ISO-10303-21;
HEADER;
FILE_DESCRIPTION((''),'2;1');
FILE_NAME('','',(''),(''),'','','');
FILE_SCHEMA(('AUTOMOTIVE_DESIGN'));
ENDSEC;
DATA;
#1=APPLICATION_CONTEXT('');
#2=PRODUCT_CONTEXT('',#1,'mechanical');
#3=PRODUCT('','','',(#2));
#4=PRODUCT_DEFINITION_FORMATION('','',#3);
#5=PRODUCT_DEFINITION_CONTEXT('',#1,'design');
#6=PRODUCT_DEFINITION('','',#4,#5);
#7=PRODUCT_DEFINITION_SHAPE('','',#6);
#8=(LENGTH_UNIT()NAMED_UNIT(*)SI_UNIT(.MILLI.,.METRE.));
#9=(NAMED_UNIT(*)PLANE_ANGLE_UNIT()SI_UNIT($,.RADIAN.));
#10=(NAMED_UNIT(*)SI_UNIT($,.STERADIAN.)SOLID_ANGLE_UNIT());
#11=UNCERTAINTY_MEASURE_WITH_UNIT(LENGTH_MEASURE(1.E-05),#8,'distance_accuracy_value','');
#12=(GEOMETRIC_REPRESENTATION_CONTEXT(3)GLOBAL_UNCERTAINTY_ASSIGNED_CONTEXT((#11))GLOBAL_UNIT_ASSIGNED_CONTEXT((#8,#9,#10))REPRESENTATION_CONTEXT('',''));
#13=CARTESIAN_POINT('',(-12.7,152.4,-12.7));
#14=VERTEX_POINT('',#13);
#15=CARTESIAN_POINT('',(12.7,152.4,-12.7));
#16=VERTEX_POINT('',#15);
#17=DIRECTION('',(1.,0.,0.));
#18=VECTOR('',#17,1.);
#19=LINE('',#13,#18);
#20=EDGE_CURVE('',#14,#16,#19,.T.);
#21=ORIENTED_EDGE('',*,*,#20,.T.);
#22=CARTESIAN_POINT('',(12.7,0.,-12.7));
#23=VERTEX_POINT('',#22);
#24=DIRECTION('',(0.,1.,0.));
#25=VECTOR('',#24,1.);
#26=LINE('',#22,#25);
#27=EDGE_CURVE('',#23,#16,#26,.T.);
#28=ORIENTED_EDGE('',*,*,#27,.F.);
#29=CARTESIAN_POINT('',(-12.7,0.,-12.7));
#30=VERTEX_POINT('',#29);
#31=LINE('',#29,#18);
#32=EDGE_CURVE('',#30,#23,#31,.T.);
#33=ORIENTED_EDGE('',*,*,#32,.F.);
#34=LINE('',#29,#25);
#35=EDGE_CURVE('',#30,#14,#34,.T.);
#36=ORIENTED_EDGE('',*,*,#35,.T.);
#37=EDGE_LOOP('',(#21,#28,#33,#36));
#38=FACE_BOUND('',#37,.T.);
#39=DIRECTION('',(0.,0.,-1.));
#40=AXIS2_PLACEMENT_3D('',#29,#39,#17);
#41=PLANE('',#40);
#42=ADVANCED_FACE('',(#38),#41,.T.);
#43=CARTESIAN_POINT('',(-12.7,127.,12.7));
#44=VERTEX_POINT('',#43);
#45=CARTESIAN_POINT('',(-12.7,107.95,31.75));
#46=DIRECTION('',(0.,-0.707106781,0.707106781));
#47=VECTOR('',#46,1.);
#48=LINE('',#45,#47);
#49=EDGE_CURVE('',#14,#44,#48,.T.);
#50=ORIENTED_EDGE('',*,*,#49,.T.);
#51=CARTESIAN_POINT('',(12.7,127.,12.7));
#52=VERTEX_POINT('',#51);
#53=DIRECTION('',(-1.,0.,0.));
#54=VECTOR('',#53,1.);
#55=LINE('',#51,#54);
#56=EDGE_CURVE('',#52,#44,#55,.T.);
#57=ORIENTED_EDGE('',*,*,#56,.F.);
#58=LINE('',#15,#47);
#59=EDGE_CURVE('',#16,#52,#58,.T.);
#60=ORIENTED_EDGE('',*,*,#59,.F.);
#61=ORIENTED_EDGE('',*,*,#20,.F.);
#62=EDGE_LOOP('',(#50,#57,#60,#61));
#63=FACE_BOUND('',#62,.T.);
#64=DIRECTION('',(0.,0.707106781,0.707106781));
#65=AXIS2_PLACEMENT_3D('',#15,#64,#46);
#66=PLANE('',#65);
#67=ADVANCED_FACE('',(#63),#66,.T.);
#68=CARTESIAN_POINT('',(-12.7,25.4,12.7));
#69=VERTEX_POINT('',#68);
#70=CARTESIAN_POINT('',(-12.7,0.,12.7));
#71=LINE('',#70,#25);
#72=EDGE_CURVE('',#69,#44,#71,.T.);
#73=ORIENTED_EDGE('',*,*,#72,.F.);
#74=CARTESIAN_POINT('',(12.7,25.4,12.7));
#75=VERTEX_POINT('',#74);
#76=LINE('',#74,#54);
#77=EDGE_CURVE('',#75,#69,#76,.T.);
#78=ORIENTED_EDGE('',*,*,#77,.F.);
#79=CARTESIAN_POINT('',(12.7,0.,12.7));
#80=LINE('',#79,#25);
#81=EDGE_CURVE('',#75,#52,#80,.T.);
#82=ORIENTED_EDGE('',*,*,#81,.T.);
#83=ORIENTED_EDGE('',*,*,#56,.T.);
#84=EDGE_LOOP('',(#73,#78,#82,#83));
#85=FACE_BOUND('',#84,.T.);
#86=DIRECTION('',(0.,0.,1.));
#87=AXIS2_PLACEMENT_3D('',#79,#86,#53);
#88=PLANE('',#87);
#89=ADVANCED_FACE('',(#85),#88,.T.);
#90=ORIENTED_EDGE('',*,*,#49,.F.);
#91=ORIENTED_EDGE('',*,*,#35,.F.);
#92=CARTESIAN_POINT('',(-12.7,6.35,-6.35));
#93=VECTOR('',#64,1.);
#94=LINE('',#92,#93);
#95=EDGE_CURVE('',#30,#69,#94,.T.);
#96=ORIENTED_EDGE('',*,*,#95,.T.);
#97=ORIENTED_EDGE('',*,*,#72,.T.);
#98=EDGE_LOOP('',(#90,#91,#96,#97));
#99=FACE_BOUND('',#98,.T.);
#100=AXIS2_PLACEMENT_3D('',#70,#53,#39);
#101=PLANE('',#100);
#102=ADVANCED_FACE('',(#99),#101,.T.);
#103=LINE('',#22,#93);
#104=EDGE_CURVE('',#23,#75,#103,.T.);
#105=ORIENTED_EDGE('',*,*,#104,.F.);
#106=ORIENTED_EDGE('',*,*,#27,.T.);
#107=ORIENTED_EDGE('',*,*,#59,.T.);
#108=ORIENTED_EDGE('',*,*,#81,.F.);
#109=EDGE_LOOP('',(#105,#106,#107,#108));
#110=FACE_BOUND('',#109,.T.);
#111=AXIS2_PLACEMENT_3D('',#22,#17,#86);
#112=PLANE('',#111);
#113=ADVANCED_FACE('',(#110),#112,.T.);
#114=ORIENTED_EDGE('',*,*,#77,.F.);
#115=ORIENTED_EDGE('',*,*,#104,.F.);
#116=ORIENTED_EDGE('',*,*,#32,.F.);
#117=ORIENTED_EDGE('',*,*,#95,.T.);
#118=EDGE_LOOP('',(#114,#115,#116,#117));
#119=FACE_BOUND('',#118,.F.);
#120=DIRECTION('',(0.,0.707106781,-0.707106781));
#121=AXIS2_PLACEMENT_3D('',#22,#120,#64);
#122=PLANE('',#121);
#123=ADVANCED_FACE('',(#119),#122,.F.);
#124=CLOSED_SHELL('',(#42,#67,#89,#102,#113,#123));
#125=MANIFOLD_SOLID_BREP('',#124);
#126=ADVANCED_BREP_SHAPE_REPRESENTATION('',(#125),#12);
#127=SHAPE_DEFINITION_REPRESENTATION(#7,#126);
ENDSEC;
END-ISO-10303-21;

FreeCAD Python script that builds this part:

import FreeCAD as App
import Part
import Sketcher

V = App.Vector
Q = App.Units.Quantity


def add_polygon(sketch, points):
    """Adds a closed chain of lines whose ends are joined by coincident constraints."""
    first, n = sketch.GeometryCount, len(points)
    for a, b in zip(points, points[1:] + points[:1]):
        sketch.addGeometry(Part.LineSegment(App.Vector(*a, 0), App.Vector(*b, 0)), False)
    for i in range(n):
        sketch.addConstraint(Sketcher.Constraint("Coincident", first + i, 2, first + (i + 1) % n, 1))

doc = App.newDocument("Part")
body = doc.addObject("PartDesign::Body", "Body")

sketch1 = body.newObject("Sketcher::SketchObject", "Sketch")
sketch1.AttachmentSupport = (doc.getObject("XZ_Plane"), [""])
sketch1.MapMode = "FlatFace"
add_polygon(sketch1, [(-13, -13), (13, -13), (13, 13), (-13, 13)])
sketch1.addConstraint([
    Sketcher.Constraint("Horizontal", 0),
    Sketcher.Constraint("Vertical", 1),
    Sketcher.Constraint("Horizontal", 2),
    Sketcher.Constraint("Vertical", 3),
    Sketcher.Constraint("Symmetric", 0, 2, 2, 2, -1, 1),
    Sketcher.Constraint("Equal", 2, 1),
    Sketcher.Constraint("DistanceX", 0, 1, 0, 2, Q("1 in")),
])
pad1 = body.newObject("PartDesign::Pad", "Pad")
pad1.Profile = sketch1
pad1.Length = Q("6 in")
pad1.Reversed = True

sketch2 = body.newObject("Sketcher::SketchObject", "Sketch001")
sketch2.AttachmentSupport = (doc.getObject("YZ_Plane"), [""])
sketch2.MapMode = "FlatFace"
sketch2.AttachmentOffset = App.Placement(V(0, 0, 0.5 * 25.4), App.Rotation())
add_polygon(sketch2, [(0, 13), (0, -13), (25, 13)])
add_polygon(sketch2, [(127, 13), (152, -13), (152, 13)])
sketch2.addConstraint([
    Sketcher.Constraint("Vertical", 0),
    Sketcher.Constraint("Horizontal", 2),
    Sketcher.Constraint("Vertical", 4),
    Sketcher.Constraint("Horizontal", 5),
    Sketcher.Constraint("Symmetric", 0, 2, 2, 2, -1, 1),
    Sketcher.Constraint("Perpendicular", 1, 3),
    Sketcher.Constraint("Horizontal", 0, 2, 3, 2),
    Sketcher.Constraint("Horizontal", 2, 2, 4, 2),
    Sketcher.Constraint("Equal", 2, 5),
    Sketcher.Constraint("DistanceX", 2, 2, 2, 1, Q("1 in")),
    Sketcher.Constraint("DistanceX", -1, 1, 3, 2, Q("6 in")),
])
pocket1 = body.newObject("PartDesign::Pocket", "Pocket")
pocket1.Profile = sketch2
pocket1.Type = "UpToFirst"

doc.recompute()
